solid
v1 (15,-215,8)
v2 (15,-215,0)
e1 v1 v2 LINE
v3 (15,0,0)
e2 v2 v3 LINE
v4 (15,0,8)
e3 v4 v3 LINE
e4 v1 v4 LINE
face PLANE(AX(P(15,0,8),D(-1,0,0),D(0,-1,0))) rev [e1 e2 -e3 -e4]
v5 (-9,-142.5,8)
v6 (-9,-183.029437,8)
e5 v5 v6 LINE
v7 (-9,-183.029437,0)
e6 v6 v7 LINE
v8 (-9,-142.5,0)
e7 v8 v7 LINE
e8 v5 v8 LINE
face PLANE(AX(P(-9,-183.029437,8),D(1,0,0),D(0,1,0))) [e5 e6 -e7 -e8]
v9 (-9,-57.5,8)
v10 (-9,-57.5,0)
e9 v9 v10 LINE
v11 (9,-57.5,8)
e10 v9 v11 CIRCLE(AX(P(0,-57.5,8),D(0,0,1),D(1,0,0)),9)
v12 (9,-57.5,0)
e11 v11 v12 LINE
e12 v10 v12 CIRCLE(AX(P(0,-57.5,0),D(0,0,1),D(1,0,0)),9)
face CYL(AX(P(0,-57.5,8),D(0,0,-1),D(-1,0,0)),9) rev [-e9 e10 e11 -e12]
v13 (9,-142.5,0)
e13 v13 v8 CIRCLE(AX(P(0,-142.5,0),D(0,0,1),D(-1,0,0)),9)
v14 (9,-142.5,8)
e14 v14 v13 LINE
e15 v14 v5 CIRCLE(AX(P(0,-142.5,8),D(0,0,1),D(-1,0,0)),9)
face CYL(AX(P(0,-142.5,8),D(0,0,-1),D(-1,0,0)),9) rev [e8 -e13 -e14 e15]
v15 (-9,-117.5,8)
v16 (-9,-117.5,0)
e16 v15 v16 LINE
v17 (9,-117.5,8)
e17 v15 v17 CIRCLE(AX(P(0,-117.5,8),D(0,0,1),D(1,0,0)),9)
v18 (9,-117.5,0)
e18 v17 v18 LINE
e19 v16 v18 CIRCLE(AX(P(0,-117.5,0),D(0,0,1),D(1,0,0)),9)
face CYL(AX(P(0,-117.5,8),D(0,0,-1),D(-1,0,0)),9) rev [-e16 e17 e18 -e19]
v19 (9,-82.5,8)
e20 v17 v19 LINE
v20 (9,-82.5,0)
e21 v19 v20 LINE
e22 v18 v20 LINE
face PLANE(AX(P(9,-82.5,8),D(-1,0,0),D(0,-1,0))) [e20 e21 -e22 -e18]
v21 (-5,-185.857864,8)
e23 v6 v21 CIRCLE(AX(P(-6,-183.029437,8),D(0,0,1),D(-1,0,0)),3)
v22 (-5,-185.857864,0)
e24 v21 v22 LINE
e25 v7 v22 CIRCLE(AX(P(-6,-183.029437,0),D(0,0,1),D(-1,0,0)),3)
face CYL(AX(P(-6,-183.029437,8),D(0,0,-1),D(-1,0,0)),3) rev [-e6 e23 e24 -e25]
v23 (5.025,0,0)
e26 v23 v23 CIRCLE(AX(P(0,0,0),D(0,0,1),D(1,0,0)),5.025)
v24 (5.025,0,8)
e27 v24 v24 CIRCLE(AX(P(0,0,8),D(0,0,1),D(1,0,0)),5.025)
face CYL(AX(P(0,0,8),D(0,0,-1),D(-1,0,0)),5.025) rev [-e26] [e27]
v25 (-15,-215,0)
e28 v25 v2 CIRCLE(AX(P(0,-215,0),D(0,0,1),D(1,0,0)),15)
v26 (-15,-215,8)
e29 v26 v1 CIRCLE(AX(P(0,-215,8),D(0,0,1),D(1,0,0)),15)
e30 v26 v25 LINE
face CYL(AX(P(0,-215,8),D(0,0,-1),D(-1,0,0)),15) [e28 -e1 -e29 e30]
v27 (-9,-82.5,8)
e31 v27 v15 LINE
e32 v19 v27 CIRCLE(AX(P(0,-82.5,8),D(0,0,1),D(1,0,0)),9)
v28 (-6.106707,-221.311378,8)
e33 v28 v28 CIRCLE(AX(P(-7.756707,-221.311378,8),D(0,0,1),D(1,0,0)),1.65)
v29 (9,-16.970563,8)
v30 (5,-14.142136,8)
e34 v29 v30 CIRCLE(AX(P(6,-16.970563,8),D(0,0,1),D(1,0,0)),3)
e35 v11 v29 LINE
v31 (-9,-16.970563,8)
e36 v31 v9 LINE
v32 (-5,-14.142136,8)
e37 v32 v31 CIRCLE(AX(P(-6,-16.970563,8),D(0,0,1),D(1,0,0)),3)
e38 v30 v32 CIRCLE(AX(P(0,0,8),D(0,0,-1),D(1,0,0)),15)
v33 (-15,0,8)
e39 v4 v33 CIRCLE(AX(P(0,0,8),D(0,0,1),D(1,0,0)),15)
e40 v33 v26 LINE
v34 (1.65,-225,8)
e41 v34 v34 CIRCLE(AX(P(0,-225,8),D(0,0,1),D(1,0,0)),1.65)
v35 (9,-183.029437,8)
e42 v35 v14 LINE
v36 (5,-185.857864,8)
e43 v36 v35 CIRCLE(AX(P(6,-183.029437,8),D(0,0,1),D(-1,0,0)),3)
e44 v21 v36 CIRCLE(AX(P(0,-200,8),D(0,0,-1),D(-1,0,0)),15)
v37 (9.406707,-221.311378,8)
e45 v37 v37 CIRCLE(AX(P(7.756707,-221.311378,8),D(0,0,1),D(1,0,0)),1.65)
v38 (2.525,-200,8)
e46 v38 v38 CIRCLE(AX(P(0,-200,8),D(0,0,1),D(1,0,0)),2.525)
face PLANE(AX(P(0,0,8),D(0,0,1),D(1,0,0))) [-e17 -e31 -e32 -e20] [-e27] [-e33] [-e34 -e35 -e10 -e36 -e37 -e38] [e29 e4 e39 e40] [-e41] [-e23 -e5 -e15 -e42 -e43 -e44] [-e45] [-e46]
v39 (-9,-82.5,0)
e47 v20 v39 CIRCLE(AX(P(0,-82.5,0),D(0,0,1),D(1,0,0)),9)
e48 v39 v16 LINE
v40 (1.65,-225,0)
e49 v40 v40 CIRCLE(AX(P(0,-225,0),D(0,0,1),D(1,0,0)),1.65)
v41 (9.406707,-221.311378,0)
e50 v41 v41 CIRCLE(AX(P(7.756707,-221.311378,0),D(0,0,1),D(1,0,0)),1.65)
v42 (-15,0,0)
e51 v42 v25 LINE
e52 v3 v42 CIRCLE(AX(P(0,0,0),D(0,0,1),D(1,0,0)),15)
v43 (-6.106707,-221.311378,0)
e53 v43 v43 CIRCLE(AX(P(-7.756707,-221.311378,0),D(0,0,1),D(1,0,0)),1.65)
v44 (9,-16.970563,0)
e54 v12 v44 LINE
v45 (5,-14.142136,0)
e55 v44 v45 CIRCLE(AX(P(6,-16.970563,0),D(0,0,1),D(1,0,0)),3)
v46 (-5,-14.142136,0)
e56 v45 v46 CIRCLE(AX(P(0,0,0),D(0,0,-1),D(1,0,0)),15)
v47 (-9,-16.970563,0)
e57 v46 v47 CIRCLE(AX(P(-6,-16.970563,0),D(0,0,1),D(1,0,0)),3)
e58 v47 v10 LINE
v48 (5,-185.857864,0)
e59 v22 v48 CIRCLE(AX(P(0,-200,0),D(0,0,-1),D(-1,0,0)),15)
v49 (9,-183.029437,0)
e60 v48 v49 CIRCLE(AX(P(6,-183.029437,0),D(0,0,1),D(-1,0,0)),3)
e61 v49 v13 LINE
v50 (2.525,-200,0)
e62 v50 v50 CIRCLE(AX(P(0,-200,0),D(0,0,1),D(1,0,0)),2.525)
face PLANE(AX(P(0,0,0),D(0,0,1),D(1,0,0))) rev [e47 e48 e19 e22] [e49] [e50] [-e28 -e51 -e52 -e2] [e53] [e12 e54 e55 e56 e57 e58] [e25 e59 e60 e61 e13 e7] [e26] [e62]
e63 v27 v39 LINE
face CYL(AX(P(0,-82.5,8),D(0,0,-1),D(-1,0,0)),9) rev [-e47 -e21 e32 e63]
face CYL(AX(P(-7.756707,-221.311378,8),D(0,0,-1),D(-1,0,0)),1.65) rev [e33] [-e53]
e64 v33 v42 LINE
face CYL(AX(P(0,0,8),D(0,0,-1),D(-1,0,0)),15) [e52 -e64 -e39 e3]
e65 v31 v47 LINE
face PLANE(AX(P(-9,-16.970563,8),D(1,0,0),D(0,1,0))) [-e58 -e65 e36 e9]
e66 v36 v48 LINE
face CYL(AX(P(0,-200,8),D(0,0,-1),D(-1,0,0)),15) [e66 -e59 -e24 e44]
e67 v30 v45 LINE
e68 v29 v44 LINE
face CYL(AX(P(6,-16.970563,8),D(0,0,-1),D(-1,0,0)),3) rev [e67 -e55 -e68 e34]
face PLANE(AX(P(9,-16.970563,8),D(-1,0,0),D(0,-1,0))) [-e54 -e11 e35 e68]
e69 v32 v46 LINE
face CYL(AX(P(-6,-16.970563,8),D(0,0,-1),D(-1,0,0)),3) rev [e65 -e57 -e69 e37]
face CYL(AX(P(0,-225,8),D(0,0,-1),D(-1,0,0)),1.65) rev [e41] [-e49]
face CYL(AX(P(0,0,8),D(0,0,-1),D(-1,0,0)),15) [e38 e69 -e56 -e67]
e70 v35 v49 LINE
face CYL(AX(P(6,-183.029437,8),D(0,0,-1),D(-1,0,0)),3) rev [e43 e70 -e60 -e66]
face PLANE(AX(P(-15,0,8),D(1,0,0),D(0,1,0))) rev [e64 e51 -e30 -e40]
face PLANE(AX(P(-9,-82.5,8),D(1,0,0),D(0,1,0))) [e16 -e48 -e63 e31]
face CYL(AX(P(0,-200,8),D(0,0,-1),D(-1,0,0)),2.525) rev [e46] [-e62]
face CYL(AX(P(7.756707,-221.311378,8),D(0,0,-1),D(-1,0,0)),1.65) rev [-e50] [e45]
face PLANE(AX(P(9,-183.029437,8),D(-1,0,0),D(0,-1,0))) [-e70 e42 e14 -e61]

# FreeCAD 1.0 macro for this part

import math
import FreeCAD as App
import Part
import Sketcher

V = App.Vector
Q = App.Units.Quantity

doc = App.newDocument("Part")
body = doc.addObject("PartDesign::Body", "Body")

sketch1 = body.newObject("Sketcher::SketchObject", "Sketch")
sketch1.AttachmentSupport = (doc.getObject("XY_Plane"), [""])
sketch1.MapMode = "FlatFace"
sketch1.addGeometry([
    Part.LineSegment(V(-15, 0, 0), V(-15, -200, 0)),
    Part.ArcOfCircle(Part.Circle(V(0, -200, 0), V(0, 0, 1), 15), math.radians(180), math.radians(360)),
    Part.LineSegment(V(15, -200, 0), V(15, 0, 0)),
    Part.ArcOfCircle(Part.Circle(V(0, 0, 0), V(0, 0, 1), 15), math.radians(0), math.radians(180)),
    Part.Circle(V(0, -200, 0), V(0, 0, 1), 2.5),
    Part.ArcOfCircle(Part.Circle(V(-6, -183, 0), V(0, 0, 1), 3), math.radians(180), math.radians(289)),
    Part.LineSegment(V(-9, -183, 0), V(-9, -142.5, 0)),
    Part.ArcOfCircle(Part.Circle(V(0, -142.5, 0), V(0, 0, 1), 9), math.radians(0), math.radians(180)),
    Part.LineSegment(V(9, -142.5, 0), V(9, -183, 0)),
    Part.ArcOfCircle(Part.Circle(V(6, -183, 0), V(0, 0, 1), 3), math.radians(-109), math.radians(0)),
    Part.ArcOfCircle(Part.Circle(V(0, -200, 0), V(0, 0, 1), 15), math.radians(71), math.radians(109)),
    Part.ArcOfCircle(Part.Circle(V(0, -82.5, 0), V(0, 0, 1), 9), math.radians(0), math.radians(180)),
    Part.LineSegment(V(9, -82.5, 0), V(9, -117.5, 0)),
    Part.ArcOfCircle(Part.Circle(V(0, -117.5, 0), V(0, 0, 1), 9), math.radians(180), math.radians(360)),
    Part.LineSegment(V(-9, -117.5, 0), V(-9, -82.5, 0)),
    Part.LineSegment(V(-9, -57.5, 0), V(-9, -17, 0)),
    Part.ArcOfCircle(Part.Circle(V(-6, -17, 0), V(0, 0, 1), 3), math.radians(71), math.radians(180)),
    Part.ArcOfCircle(Part.Circle(V(0, 0, 0), V(0, 0, 1), 15), math.radians(-109), math.radians(-71)),
    Part.ArcOfCircle(Part.Circle(V(6, -17, 0), V(0, 0, 1), 3), math.radians(0), math.radians(109)),
    Part.LineSegment(V(9, -17, 0), V(9, -57.5, 0)),
    Part.ArcOfCircle(Part.Circle(V(0, -57.5, 0), V(0, 0, 1), 9), math.radians(180), math.radians(360)),
    Part.Circle(V(0, 0, 0), V(0, 0, 1), 5),
], False)
sketch1.addConstraint([
    Sketcher.Constraint("Tangent", 0, 2, 1, 1),
    Sketcher.Constraint("Tangent", 1, 2, 2, 1),
    Sketcher.Constraint("Tangent", 2, 2, 3, 1),
    Sketcher.Constraint("Tangent", 3, 2, 0, 1),
    Sketcher.Constraint("Tangent", 5, 1, 6, 1),
    Sketcher.Constraint("Tangent", 6, 2, 7, 2),
    Sketcher.Constraint("Tangent", 7, 1, 8, 1),
    Sketcher.Constraint("Tangent", 8, 2, 9, 2),
    Sketcher.Constraint("Tangent", 9, 1, 10, 1),
    Sketcher.Constraint("Tangent", 10, 2, 5, 2),
    Sketcher.Constraint("Tangent", 11, 1, 12, 1),
    Sketcher.Constraint("Tangent", 12, 2, 13, 2),
    Sketcher.Constraint("Tangent", 13, 1, 14, 1),
    Sketcher.Constraint("Tangent", 14, 2, 11, 2),
    Sketcher.Constraint("Tangent", 15, 2, 16, 2),
    Sketcher.Constraint("Tangent", 16, 1, 17, 1),
    Sketcher.Constraint("Tangent", 17, 2, 18, 2),
    Sketcher.Constraint("Tangent", 18, 1, 19, 1),
    Sketcher.Constraint("Tangent", 19, 2, 20, 2),
    Sketcher.Constraint("Tangent", 20, 1, 15, 1),
    Sketcher.Constraint("Vertical", 0),
    Sketcher.Constraint("Vertical", 2),
    Sketcher.Constraint("Vertical", 6),
    Sketcher.Constraint("Vertical", 8),
    Sketcher.Constraint("Vertical", 12),
    Sketcher.Constraint("Vertical", 14),
    Sketcher.Constraint("Vertical", 15),
    Sketcher.Constraint("Vertical", 19),
    Sketcher.Constraint("Coincident", 3, 3, -1, 1),
    Sketcher.Constraint("Coincident", 17, 3, -1, 1),
    Sketcher.Constraint("Coincident", 21, 3, -1, 1),
    Sketcher.Constraint("Coincident", 4, 3, 1, 3),
    Sketcher.Constraint("Coincident", 10, 3, 1, 3),
    Sketcher.Constraint("Equal", 5, 9),
    Sketcher.Constraint("Equal", 3, 10),
    Sketcher.Constraint("Equal", 7, 11),
    Sketcher.Constraint("Equal", 9, 16),
    Sketcher.Constraint("Equal", 10, 17),
    Sketcher.Constraint("Equal", 16, 18),
    Sketcher.Constraint("Equal", 13, 20),
    Sketcher.Constraint("PointOnObject", 7, 3, -2),
    Sketcher.Constraint("PointOnObject", 11, 3, -2),
    Sketcher.Constraint("PointOnObject", 20, 3, -2),
    Sketcher.Constraint("Equal", 8, 15),
    Sketcher.Constraint("Radius", 1, Q("15 mm")),
    Sketcher.Constraint("Radius", 5, Q("3 mm")),
    Sketcher.Constraint("Radius", 7, Q("9 mm")),
    Sketcher.Constraint("Diameter", 4, Q("5.05 mm")),
    Sketcher.Constraint("Diameter", 21, Q("10.05 mm")),
    Sketcher.Constraint("DistanceY", 0, 2, 0, 1, Q("200 mm")),
    Sketcher.Constraint("DistanceY", 12, 2, 12, 1, Q("35 mm")),
    Sketcher.Constraint("DistanceY", 7, 3, 11, 3, Q("60 mm")),
    Sketcher.Constraint("DistanceY", 11, 3, 20, 3, Q("25 mm")),
])
pad1 = body.newObject("PartDesign::Pad", "Pad")
pad1.Profile = sketch1
pad1.Length = 8

sketch2 = body.newObject("Sketcher::SketchObject", "Sketch001")
sketch2.AttachmentSupport = (doc.getObject("XY_Plane"), [""])
sketch2.MapMode = "FlatFace"
sketch2.addGeometry([
    Part.LineSegment(V(-15, -200, 0), V(-15, -215, 0)),
    Part.ArcOfCircle(Part.Circle(V(0, -215, 0), V(0, 0, 1), 15), math.radians(180), math.radians(360)),
    Part.LineSegment(V(15, -215, 0), V(15, -200, 0)),
    Part.ArcOfCircle(Part.Circle(V(0, -200, 0), V(0, 0, 1), 15), math.radians(180), math.radians(360)),
    Part.Circle(V(0, -225, 0), V(0, 0, 1), 1.6),
    Part.Circle(V(-7.8, -221.3, 0), V(0, 0, 1), 1.6),
    Part.Circle(V(7.8, -221.3, 0), V(0, 0, 1), 1.6),
], False)
sketch2.addConstraint([
    Sketcher.Constraint("Tangent", 0, 2, 1, 1),
    Sketcher.Constraint("Tangent", 1, 2, 2, 1),
    Sketcher.Constraint("Tangent", 2, 2, 3, 2),
    Sketcher.Constraint("Tangent", 3, 1, 0, 1),
    Sketcher.Constraint("Vertical", 0),
    Sketcher.Constraint("Vertical", 2),
    Sketcher.Constraint("Equal", 4, 5),
    Sketcher.Constraint("Equal", 5, 6),
    Sketcher.Constraint("Symmetric", 5, 3, 6, 3, -2),
    Sketcher.Constraint("PointOnObject", 1, 3, -2),
    Sketcher.Constraint("PointOnObject", 4, 3, -2),
    Sketcher.Constraint("Radius", 1, Q("15 mm")),
    Sketcher.Constraint("Diameter", 4, Q("3.3 mm")),
    Sketcher.Constraint("DistanceY", 0, 2, 0, 1, Q("15 mm")),
    Sketcher.Constraint("DistanceY", 1, 3, -1, 1, Q("215 mm")),
    Sketcher.Constraint("DistanceY", 4, 3, -1, 1, Q("225 mm")),
    Sketcher.Constraint("DistanceY", 5, 3, -1, 1, Q("221.311378 mm")),
    Sketcher.Constraint("DistanceX", 5, 3, -1, 1, Q("7.756707 mm")),
])
pad2 = body.newObject("PartDesign::Pad", "Pad001")
pad2.Profile = sketch2
pad2.Length = 8

doc.recompute()
